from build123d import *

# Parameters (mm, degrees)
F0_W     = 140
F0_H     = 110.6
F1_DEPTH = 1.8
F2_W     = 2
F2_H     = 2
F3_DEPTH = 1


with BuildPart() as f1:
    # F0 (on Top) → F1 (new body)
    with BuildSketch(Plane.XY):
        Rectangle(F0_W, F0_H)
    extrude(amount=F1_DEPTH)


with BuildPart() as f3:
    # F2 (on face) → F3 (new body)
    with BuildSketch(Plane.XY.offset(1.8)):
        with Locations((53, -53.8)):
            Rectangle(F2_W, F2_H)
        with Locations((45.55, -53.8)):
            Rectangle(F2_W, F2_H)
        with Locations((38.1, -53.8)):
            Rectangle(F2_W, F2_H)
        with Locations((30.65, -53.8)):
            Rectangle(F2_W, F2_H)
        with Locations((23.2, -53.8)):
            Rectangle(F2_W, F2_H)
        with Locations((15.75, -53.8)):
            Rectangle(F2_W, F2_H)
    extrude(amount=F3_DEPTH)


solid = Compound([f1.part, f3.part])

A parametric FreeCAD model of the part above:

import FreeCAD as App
import Part
import Sketcher
Q = App.Units.Quantity

doc = App.newDocument("Part")
body = doc.addObject("PartDesign::Body", "Body")

# Sketch on XY plane
sketch1 = body.newObject("Sketcher::SketchObject", "Sketch")
sketch1.AttachmentSupport = (doc.getObject("XY_Plane"), [""])
sketch1.MapMode = "FlatFace"
sketch1.addGeometry(Part.LineSegment(App.Vector(-70, 55.3, 0), App.Vector(-70, -55.3, 0)), False)
sketch1.addGeometry(Part.LineSegment(App.Vector(-70, -55.3, 0), App.Vector(70, -55.3, 0)), False)
sketch1.addGeometry(Part.LineSegment(App.Vector(70, -55.3, 0), App.Vector(70, 55.3, 0)), False)
sketch1.addGeometry(Part.LineSegment(App.Vector(70, 55.3, 0), App.Vector(-70, 55.3, 0)), False)
sketch1.addConstraint(Sketcher.Constraint("Coincident", 0, 2, 1, 1))
sketch1.addConstraint(Sketcher.Constraint("Coincident", 1, 2, 2, 1))
sketch1.addConstraint(Sketcher.Constraint("Coincident", 2, 2, 3, 1))
sketch1.addConstraint(Sketcher.Constraint("Coincident", 3, 2, 0, 1))
sketch1.addConstraint(Sketcher.Constraint("Vertical", 0))
sketch1.addConstraint(Sketcher.Constraint("Horizontal", 1))
sketch1.addConstraint(Sketcher.Constraint("Vertical", 2))
sketch1.addConstraint(Sketcher.Constraint("Horizontal", 3))
sketch1.addConstraint(Sketcher.Constraint("Symmetric", 0, 2, 2, 2, -1, 1))
sketch1.addConstraint(Sketcher.Constraint("DistanceX", 1, 1, 1, 2, Q("140 mm")))
sketch1.addConstraint(Sketcher.Constraint("DistanceY", 0, 2, 0, 1, Q("110.6 mm")))
pad1 = body.newObject("PartDesign::Pad", "Pad")
pad1.Profile = sketch1
pad1.Length = 1.8
body2 = doc.addObject("PartDesign::Body", "Body001")
body2.AllowCompound = True

# Sketch on XY plane
sketch2 = body2.newObject("Sketcher::SketchObject", "Sketch001")
sketch2.AttachmentSupport = (doc.getObject("XY_Plane001"), [""])
sketch2.MapMode = "FlatFace"
sketch2.AttachmentOffset = App.Placement(App.Vector(0, 0, 1.8), App.Rotation())
sketch2.addGeometry(Part.LineSegment(App.Vector(52, -52.8, 0), App.Vector(52, -54.8, 0)), False)
sketch2.addGeometry(Part.LineSegment(App.Vector(52, -54.8, 0), App.Vector(54, -54.8, 0)), False)
sketch2.addGeometry(Part.LineSegment(App.Vector(54, -54.8, 0), App.Vector(54, -52.8, 0)), False)
sketch2.addGeometry(Part.LineSegment(App.Vector(54, -52.8, 0), App.Vector(52, -52.8, 0)), False)
sketch2.addGeometry(Part.LineSegment(App.Vector(44.55, -52.8, 0), App.Vector(44.55, -54.8, 0)), False)
sketch2.addGeometry(Part.LineSegment(App.Vector(44.55, -54.8, 0), App.Vector(46.55, -54.8, 0)), False)
sketch2.addGeometry(Part.LineSegment(App.Vector(46.55, -54.8, 0), App.Vector(46.55, -52.8, 0)), False)
sketch2.addGeometry(Part.LineSegment(App.Vector(46.55, -52.8, 0), App.Vector(44.55, -52.8, 0)), False)
sketch2.addGeometry(Part.LineSegment(App.Vector(37.1, -52.8, 0), App.Vector(37.1, -54.8, 0)), False)
sketch2.addGeometry(Part.LineSegment(App.Vector(37.1, -54.8, 0), App.Vector(39.1, -54.8, 0)), False)
sketch2.addGeometry(Part.LineSegment(App.Vector(39.1, -54.8, 0), App.Vector(39.1, -52.8, 0)), False)
sketch2.addGeometry(Part.LineSegment(App.Vector(39.1, -52.8, 0), App.Vector(37.1, -52.8, 0)), False)
sketch2.addGeometry(Part.LineSegment(App.Vector(29.65, -52.8, 0), App.Vector(29.65, -54.8, 0)), False)
sketch2.addGeometry(Part.LineSegment(App.Vector(29.65, -54.8, 0), App.Vector(31.65, -54.8, 0)), False)
sketch2.addGeometry(Part.LineSegment(App.Vector(31.65, -54.8, 0), App.Vector(31.65, -52.8, 0)), False)
sketch2.addGeometry(Part.LineSegment(App.Vector(31.65, -52.8, 0), App.Vector(29.65, -52.8, 0)), False)
sketch2.addGeometry(Part.LineSegment(App.Vector(22.2, -52.8, 0), App.Vector(22.2, -54.8, 0)), False)
sketch2.addGeometry(Part.LineSegment(App.Vector(22.2, -54.8, 0), App.Vector(24.2, -54.8, 0)), False)
sketch2.addGeometry(Part.LineSegment(App.Vector(24.2, -54.8, 0), App.Vector(24.2, -52.8, 0)), False)
sketch2.addGeometry(Part.LineSegment(App.Vector(24.2, -52.8, 0), App.Vector(22.2, -52.8, 0)), False)
sketch2.addGeometry(Part.LineSegment(App.Vector(14.75, -52.8, 0), App.Vector(14.75, -54.8, 0)), False)
sketch2.addGeometry(Part.LineSegment(App.Vector(14.75, -54.8, 0), App.Vector(16.75, -54.8, 0)), False)
sketch2.addGeometry(Part.LineSegment(App.Vector(16.75, -54.8, 0), App.Vector(16.75, -52.8, 0)), False)
sketch2.addGeometry(Part.LineSegment(App.Vector(16.75, -52.8, 0), App.Vector(14.75, -52.8, 0)), False)
sketch2.addConstraint(Sketcher.Constraint("Coincident", 0, 2, 1, 1))
sketch2.addConstraint(Sketcher.Constraint("Coincident", 1, 2, 2, 1))
sketch2.addConstraint(Sketcher.Constraint("Coincident", 2, 2, 3, 1))
sketch2.addConstraint(Sketcher.Constraint("Coincident", 3, 2, 0, 1))
sketch2.addConstraint(Sketcher.Constraint("Coincident", 4, 2, 5, 1))
sketch2.addConstraint(Sketcher.Constraint("Coincident", 5, 2, 6, 1))
sketch2.addConstraint(Sketcher.Constraint("Coincident", 6, 2, 7, 1))
sketch2.addConstraint(Sketcher.Constraint("Coincident", 7, 2, 4, 1))
sketch2.addConstraint(Sketcher.Constraint("Coincident", 8, 2, 9, 1))
sketch2.addConstraint(Sketcher.Constraint("Coincident", 9, 2, 10, 1))
sketch2.addConstraint(Sketcher.Constraint("Coincident", 10, 2, 11, 1))
sketch2.addConstraint(Sketcher.Constraint("Coincident", 11, 2, 8, 1))
sketch2.addConstraint(Sketcher.Constraint("Coincident", 12, 2, 13, 1))
sketch2.addConstraint(Sketcher.Constraint("Coincident", 13, 2, 14, 1))
sketch2.addConstraint(Sketcher.Constraint("Coincident", 14, 2, 15, 1))
sketch2.addConstraint(Sketcher.Constraint("Coincident", 15, 2, 12, 1))
sketch2.addConstraint(Sketcher.Constraint("Coincident", 16, 2, 17, 1))
sketch2.addConstraint(Sketcher.Constraint("Coincident", 17, 2, 18, 1))
sketch2.addConstraint(Sketcher.Constraint("Coincident", 18, 2, 19, 1))
sketch2.addConstraint(Sketcher.Constraint("Coincident", 19, 2, 16, 1))
sketch2.addConstraint(Sketcher.Constraint("Coincident", 20, 2, 21, 1))
sketch2.addConstraint(Sketcher.Constraint("Coincident", 21, 2, 22, 1))
sketch2.addConstraint(Sketcher.Constraint("Coincident", 22, 2, 23, 1))
sketch2.addConstraint(Sketcher.Constraint("Coincident", 23, 2, 20, 1))
sketch2.addConstraint(Sketcher.Constraint("Vertical", 0))
sketch2.addConstraint(Sketcher.Constraint("Horizontal", 1))
sketch2.addConstraint(Sketcher.Constraint("Vertical", 2))
sketch2.addConstraint(Sketcher.Constraint("Horizontal", 3))
sketch2.addConstraint(Sketcher.Constraint("Vertical", 4))
sketch2.addConstraint(Sketcher.Constraint("Horizontal", 5))
sketch2.addConstraint(Sketcher.Constraint("Vertical", 6))
sketch2.addConstraint(Sketcher.Constraint("Horizontal", 7))
sketch2.addConstraint(Sketcher.Constraint("Vertical", 8))
sketch2.addConstraint(Sketcher.Constraint("Horizontal", 9))
sketch2.addConstraint(Sketcher.Constraint("Vertical", 10))
sketch2.addConstraint(Sketcher.Constraint("Horizontal", 11))
sketch2.addConstraint(Sketcher.Constraint("Vertical", 12))
sketch2.addConstraint(Sketcher.Constraint("Horizontal", 13))
sketch2.addConstraint(Sketcher.Constraint("Vertical", 14))
sketch2.addConstraint(Sketcher.Constraint("Horizontal", 15))
sketch2.addConstraint(Sketcher.Constraint("Vertical", 16))
sketch2.addConstraint(Sketcher.Constraint("Horizontal", 17))
sketch2.addConstraint(Sketcher.Constraint("Vertical", 18))
sketch2.addConstraint(Sketcher.Constraint("Horizontal", 19))
sketch2.addConstraint(Sketcher.Constraint("Vertical", 20))
sketch2.addConstraint(Sketcher.Constraint("Horizontal", 21))
sketch2.addConstraint(Sketcher.Constraint("Vertical", 22))
sketch2.addConstraint(Sketcher.Constraint("Horizontal", 23))
sketch2.addConstraint(Sketcher.Constraint("Horizontal", 1, 2, 4, 2))
sketch2.addConstraint(Sketcher.Constraint("Horizontal", 3, 2, 6, 2))
sketch2.addConstraint(Sketcher.Constraint("Horizontal", 5, 2, 8, 2))
sketch2.addConstraint(Sketcher.Constraint("Horizontal", 7, 2, 10, 2))
sketch2.addConstraint(Sketcher.Constraint("Horizontal", 9, 2, 12, 2))
sketch2.addConstraint(Sketcher.Constraint("Horizontal", 11, 2, 14, 2))
sketch2.addConstraint(Sketcher.Constraint("Horizontal", 13, 2, 16, 2))
sketch2.addConstraint(Sketcher.Constraint("Horizontal", 15, 2, 18, 2))
sketch2.addConstraint(Sketcher.Constraint("Horizontal", 17, 2, 20, 2))
sketch2.addConstraint(Sketcher.Constraint("Horizontal", 19, 2, 22, 2))
sketch2.addConstraint(Sketcher.Constraint("Equal", 3, 5))
sketch2.addConstraint(Sketcher.Constraint("Equal", 7, 9))
sketch2.addConstraint(Sketcher.Constraint("Equal", 11, 13))
sketch2.addConstraint(Sketcher.Constraint("Equal", 15, 17))
sketch2.addConstraint(Sketcher.Constraint("Equal", 19, 21))
sketch2.addConstraint(Sketcher.Constraint("Equal", 23, 0))
sketch2.addConstraint(Sketcher.Constraint("DistanceX", 1, 1, 1, 2, Q("2 mm")))
sketch2.addConstraint(Sketcher.Constraint("DistanceX", -1, 1, 0, 2, Q("52 mm")))
sketch2.addConstraint(Sketcher.Constraint("DistanceY", 0, 2, -1, 1, Q("54.8 mm")))
sketch2.addConstraint(Sketcher.Constraint("DistanceX", -1, 1, 8, 2, Q("37.1 mm")))
sketch2.addConstraint(Sketcher.Constraint("DistanceX", -1, 1, 16, 2, Q("22.2 mm")))
sketch2.addConstraint(Sketcher.Constraint("DistanceX", 12, 2, 4, 2, Q("14.9 mm")))
sketch2.addConstraint(Sketcher.Constraint("DistanceX", 20, 2, 12, 2, Q("14.9 mm")))
sketch2.addConstraint(Sketcher.Constraint("DistanceX", -1, 1, 4, 2, Q("44.55 mm")))
pad2 = body2.newObject("PartDesign::Pad", "Pad001")
pad2.Profile = sketch2
pad2.Length = 1

doc.recompute()
